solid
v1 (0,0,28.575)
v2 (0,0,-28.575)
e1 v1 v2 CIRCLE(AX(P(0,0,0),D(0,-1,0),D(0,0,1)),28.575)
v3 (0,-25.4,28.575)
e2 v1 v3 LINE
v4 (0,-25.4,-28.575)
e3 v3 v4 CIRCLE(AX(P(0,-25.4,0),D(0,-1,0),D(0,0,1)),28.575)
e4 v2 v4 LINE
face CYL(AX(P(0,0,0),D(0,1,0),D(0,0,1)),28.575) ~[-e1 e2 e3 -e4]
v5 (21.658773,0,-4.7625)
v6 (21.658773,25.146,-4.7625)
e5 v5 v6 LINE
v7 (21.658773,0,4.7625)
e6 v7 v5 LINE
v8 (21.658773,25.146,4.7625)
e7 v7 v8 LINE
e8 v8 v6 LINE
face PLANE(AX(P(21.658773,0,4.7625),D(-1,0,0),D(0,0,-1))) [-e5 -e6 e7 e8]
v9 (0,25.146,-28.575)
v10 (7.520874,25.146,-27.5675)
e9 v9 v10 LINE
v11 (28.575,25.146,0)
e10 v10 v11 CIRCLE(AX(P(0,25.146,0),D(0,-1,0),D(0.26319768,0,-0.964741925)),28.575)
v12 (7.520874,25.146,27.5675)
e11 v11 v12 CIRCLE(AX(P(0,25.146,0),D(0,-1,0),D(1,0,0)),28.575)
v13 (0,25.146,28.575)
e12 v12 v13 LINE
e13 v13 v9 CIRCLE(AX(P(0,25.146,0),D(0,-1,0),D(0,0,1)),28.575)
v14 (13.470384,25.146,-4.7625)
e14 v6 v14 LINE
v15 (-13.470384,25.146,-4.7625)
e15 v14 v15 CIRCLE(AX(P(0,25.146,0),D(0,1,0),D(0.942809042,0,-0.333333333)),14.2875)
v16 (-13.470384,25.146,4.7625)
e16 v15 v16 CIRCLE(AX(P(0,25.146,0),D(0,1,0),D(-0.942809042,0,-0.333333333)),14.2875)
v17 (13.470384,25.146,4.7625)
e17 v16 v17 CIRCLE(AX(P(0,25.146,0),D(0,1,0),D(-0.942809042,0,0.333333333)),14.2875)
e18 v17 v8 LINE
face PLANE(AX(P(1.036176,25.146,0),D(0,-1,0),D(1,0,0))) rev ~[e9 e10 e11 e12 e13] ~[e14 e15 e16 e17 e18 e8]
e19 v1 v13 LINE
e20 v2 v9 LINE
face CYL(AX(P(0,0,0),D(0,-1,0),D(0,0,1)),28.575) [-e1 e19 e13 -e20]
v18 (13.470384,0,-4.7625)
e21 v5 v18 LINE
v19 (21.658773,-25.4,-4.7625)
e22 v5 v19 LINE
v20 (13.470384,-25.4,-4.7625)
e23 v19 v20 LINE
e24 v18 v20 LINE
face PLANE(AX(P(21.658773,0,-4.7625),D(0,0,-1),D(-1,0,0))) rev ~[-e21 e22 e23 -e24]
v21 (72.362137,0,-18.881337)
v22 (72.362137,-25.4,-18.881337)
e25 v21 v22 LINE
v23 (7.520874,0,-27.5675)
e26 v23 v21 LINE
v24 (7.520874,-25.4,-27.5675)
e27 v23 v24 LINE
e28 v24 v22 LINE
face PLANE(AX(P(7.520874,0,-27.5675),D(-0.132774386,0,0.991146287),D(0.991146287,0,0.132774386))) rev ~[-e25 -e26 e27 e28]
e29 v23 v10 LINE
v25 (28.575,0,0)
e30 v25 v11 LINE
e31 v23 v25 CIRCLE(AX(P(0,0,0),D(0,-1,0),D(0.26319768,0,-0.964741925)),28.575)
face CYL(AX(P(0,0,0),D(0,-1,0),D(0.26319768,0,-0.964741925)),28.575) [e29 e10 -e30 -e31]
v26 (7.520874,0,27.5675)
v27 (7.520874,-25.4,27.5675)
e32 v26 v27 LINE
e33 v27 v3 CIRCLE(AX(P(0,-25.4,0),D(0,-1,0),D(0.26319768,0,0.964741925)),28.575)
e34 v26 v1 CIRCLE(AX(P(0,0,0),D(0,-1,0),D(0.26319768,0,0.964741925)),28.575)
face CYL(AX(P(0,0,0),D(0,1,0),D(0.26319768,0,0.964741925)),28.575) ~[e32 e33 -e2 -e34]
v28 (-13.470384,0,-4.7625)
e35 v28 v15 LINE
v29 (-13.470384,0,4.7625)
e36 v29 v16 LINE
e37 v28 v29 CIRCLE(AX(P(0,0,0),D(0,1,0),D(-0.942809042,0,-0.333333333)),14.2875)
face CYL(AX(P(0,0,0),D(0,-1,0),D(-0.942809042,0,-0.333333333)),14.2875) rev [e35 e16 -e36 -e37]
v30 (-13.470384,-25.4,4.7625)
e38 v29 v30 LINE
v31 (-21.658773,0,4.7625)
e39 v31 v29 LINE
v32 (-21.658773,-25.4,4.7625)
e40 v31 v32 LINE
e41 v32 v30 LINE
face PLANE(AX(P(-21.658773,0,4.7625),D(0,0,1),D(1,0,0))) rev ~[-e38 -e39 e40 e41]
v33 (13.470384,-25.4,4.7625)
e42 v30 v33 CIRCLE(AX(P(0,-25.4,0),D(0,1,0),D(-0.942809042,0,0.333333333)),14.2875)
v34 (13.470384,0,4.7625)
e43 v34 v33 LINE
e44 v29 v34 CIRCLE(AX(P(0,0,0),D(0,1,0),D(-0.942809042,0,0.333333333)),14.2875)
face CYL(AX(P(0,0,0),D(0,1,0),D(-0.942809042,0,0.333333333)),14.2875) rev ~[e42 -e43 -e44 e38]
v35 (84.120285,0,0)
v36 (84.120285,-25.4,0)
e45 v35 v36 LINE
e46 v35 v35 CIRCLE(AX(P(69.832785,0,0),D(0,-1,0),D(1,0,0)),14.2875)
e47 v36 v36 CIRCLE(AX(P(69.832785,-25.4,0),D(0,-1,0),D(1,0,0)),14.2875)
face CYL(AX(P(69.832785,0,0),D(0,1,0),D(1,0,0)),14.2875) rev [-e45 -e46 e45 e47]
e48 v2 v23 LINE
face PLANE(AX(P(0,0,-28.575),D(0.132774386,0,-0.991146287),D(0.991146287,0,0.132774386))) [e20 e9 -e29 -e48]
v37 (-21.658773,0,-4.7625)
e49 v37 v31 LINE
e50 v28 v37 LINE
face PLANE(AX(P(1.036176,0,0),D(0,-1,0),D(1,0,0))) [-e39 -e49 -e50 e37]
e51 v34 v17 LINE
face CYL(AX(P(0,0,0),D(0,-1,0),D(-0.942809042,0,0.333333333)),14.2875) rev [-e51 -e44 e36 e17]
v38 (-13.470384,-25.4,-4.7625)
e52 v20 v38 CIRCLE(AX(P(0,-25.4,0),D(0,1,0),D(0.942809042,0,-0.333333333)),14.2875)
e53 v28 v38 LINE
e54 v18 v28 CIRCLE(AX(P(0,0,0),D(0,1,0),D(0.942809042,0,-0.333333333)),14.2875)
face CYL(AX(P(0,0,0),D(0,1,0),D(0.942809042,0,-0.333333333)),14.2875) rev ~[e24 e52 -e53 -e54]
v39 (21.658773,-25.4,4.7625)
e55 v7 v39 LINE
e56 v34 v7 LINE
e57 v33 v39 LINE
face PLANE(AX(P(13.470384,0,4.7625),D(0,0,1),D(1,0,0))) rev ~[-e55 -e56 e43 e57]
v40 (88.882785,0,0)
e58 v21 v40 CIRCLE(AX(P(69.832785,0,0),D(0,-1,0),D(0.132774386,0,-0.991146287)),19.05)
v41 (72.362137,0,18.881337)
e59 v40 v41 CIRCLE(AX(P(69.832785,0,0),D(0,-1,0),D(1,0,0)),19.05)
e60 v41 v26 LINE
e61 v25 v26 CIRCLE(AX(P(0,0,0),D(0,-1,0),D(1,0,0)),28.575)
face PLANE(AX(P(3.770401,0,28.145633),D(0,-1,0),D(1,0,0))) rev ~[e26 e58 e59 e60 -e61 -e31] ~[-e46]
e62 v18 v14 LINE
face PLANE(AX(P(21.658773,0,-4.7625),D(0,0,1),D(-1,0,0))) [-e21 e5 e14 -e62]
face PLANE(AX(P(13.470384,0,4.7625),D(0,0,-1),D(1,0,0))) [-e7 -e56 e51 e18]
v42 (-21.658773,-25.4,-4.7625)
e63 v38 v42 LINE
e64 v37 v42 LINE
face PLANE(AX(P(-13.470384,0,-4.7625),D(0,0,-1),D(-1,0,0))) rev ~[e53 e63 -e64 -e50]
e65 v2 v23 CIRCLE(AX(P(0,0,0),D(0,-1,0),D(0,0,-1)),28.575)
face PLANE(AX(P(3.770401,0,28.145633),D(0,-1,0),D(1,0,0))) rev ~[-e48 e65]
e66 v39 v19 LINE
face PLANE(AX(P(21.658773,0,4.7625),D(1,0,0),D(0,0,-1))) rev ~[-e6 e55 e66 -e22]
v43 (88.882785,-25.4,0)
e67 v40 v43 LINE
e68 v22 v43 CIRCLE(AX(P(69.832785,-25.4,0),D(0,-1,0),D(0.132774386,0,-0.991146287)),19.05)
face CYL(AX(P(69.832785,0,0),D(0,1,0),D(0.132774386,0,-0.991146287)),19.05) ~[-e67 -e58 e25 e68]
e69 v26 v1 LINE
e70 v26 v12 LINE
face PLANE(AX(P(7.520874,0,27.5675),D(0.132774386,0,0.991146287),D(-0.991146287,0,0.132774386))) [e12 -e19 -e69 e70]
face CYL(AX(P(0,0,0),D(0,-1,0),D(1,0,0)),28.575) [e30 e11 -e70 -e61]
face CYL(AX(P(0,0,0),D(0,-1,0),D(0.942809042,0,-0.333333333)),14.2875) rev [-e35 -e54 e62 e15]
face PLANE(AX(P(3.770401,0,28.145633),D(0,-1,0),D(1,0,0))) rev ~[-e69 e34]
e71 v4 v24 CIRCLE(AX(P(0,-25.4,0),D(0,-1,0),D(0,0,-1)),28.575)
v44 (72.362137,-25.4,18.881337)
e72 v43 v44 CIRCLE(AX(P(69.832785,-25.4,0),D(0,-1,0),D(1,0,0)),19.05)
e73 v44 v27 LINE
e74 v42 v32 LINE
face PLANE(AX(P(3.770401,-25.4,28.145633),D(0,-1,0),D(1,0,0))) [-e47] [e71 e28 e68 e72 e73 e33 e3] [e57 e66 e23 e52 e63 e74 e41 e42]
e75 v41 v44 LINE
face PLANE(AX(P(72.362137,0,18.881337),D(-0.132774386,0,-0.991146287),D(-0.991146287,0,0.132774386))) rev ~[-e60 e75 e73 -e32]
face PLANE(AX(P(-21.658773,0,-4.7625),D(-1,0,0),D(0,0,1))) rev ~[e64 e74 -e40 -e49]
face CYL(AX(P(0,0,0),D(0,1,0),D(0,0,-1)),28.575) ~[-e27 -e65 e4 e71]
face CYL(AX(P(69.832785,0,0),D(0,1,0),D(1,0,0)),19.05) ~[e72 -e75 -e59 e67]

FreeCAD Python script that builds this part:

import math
import FreeCAD as App
import Part
import Sketcher
Q = App.Units.Quantity

doc = App.newDocument("Part")
body = doc.addObject("PartDesign::Body", "Body")

sketch1 = body.newObject("Sketcher::SketchObject", "Sketch")
sketch1.AttachmentSupport = (doc.getObject("XZ_Plane"), [""])
sketch1.MapMode = "FlatFace"
sketch1.addGeometry([
    Part.ArcOfCircle(Part.Circle(App.Vector(0, 0, 0), App.Vector(0, 0, 1), 29), math.radians(74.74), math.radians(90)),
    Part.ArcOfCircle(Part.Circle(App.Vector(0, 0, 0), App.Vector(0, 0, 1), 29), math.radians(90), math.radians(270)),
    Part.ArcOfCircle(Part.Circle(App.Vector(0, 0, 0), App.Vector(0, 0, 1), 29), math.radians(-90), math.radians(-74.74)),
    Part.LineSegment(App.Vector(8, -28, 0), App.Vector(72, -19, 0)),
    Part.ArcOfCircle(Part.Circle(App.Vector(70, 0, 0), App.Vector(0, 0, 1), 19), math.radians(-82), math.radians(0)),
    Part.ArcOfCircle(Part.Circle(App.Vector(70, 0, 0), App.Vector(0, 0, 1), 19), math.radians(0), math.radians(82)),
    Part.LineSegment(App.Vector(72, 19, 0), App.Vector(8, 28, 0)),
    Part.LineSegment(App.Vector(-22, 5, 0), App.Vector(-13, 5, 0)),
    Part.ArcOfCircle(Part.Circle(App.Vector(0, 0, 0), App.Vector(0, 0, 1), 14), math.radians(19), math.radians(161)),
    Part.LineSegment(App.Vector(13, 5, 0), App.Vector(22, 5, 0)),
    Part.LineSegment(App.Vector(22, 5, 0), App.Vector(22, -5, 0)),
    Part.LineSegment(App.Vector(22, -5, 0), App.Vector(13, -5, 0)),
    Part.ArcOfCircle(Part.Circle(App.Vector(0, 0, 0), App.Vector(0, 0, 1), 14), math.radians(-161), math.radians(-19)),
    Part.LineSegment(App.Vector(-13, -5, 0), App.Vector(-22, -5, 0)),
    Part.LineSegment(App.Vector(-22, -5, 0), App.Vector(-22, 5, 0)),
    Part.Circle(App.Vector(70, 0, 0), App.Vector(0, 0, 1), 14),
], False)
sketch1.addConstraint([
    Sketcher.Constraint("Tangent", 0, 2, 1, 1),
    Sketcher.Constraint("Tangent", 1, 2, 2, 1),
    Sketcher.Constraint("Coincident", 2, 2, 3, 1),
    Sketcher.Constraint("Tangent", 3, 2, 4, 1),
    Sketcher.Constraint("Tangent", 4, 2, 5, 1),
    Sketcher.Constraint("Tangent", 5, 2, 6, 1),
    Sketcher.Constraint("Coincident", 6, 2, 0, 1),
    Sketcher.Constraint("Coincident", 7, 2, 8, 2),
    Sketcher.Constraint("Coincident", 8, 1, 9, 1),
    Sketcher.Constraint("Coincident", 9, 2, 10, 1),
    Sketcher.Constraint("Coincident", 10, 2, 11, 1),
    Sketcher.Constraint("Coincident", 11, 2, 12, 2),
    Sketcher.Constraint("Coincident", 12, 1, 13, 1),
    Sketcher.Constraint("Coincident", 13, 2, 14, 1),
    Sketcher.Constraint("Coincident", 14, 2, 7, 1),
    Sketcher.Constraint("Horizontal", 7),
    Sketcher.Constraint("Horizontal", 9),
    Sketcher.Constraint("Vertical", 10),
    Sketcher.Constraint("Horizontal", 11),
    Sketcher.Constraint("Horizontal", 13),
    Sketcher.Constraint("Vertical", 14),
    Sketcher.Constraint("Coincident", 0, 3, -1, 1),
    Sketcher.Constraint("Coincident", 8, 3, -1, 1),
    Sketcher.Constraint("Coincident", 12, 3, -1, 1),
    Sketcher.Constraint("Coincident", 15, 3, 4, 3),
    Sketcher.Constraint("Equal", 0, 1),
    Sketcher.Constraint("Equal", 1, 2),
    Sketcher.Constraint("Equal", 4, 5),
    Sketcher.Constraint("Equal", 8, 12),
    Sketcher.Constraint("Equal", 12, 15),
    Sketcher.Constraint("Symmetric", 9, 2, 13, 2, -1, 1),
    Sketcher.Constraint("Symmetric", 3, 2, 5, 2, -1),
    Sketcher.Constraint("PointOnObject", 0, 2, -2),
    Sketcher.Constraint("PointOnObject", 1, 2, -2),
    Sketcher.Constraint("PointOnObject", 4, 2, -1),
    Sketcher.Constraint("Horizontal", 7, 2, 8, 1),
    Sketcher.Constraint("Horizontal", 11, 2, 12, 1),
    Sketcher.Constraint("Radius", 4, Q("0.75 in")),
    Sketcher.Constraint("Diameter", 15, Q("1.125 in")),
    Sketcher.Constraint("Radius", 0, Q("1.125 in")),
    Sketcher.Constraint("DistanceY", 10, 2, 10, 1, Q("0.375 in")),
    Sketcher.Constraint("DistanceX", 7, 1, 7, 2, Q("8.188388 mm")),
    Sketcher.Constraint("DistanceY", 2, 2, -1, 1, Q("27.5675 mm")),
    Sketcher.Constraint("DistanceX", 2, 2, 4, 2, Q("81.361911 mm")),
])
pad1 = body.newObject("PartDesign::Pad", "Pad")
pad1.Profile = sketch1
pad1.Length = Q("1 in")

sketch2 = body.newObject("Sketcher::SketchObject", "Sketch001")
sketch2.AttachmentSupport = (doc.getObject("XZ_Plane"), [""])
sketch2.MapMode = "FlatFace"
sketch2.addGeometry([
    Part.LineSegment(App.Vector(8, 28, 0), App.Vector(0, 29, 0)),
    Part.ArcOfCircle(Part.Circle(App.Vector(0, 0, 0), App.Vector(0, 0, 1), 29), math.radians(90), math.radians(270)),
    Part.LineSegment(App.Vector(0, -29, 0), App.Vector(8, -28, 0)),
    Part.ArcOfCircle(Part.Circle(App.Vector(0, 0, 0), App.Vector(0, 0, 1), 29), math.radians(-75), math.radians(0)),
    Part.ArcOfCircle(Part.Circle(App.Vector(0, 0, 0), App.Vector(0, 0, 1), 29), math.radians(0), math.radians(75)),
    Part.ArcOfCircle(Part.Circle(App.Vector(0, 0, 0), App.Vector(0, 0, 1), 14), math.radians(-161), math.radians(-19)),
    Part.ArcOfCircle(Part.Circle(App.Vector(0, 0, 0), App.Vector(0, 0, 1), 14), math.radians(161), math.radians(199)),
    Part.ArcOfCircle(Part.Circle(App.Vector(0, 0, 0), App.Vector(0, 0, 1), 14), math.radians(19), math.radians(161)),
    Part.LineSegment(App.Vector(13, 5, 0), App.Vector(22, 5, 0)),
    Part.LineSegment(App.Vector(22, 5, 0), App.Vector(22, -5, 0)),
    Part.LineSegment(App.Vector(22, -5, 0), App.Vector(13, -5, 0)),
], False)
sketch2.addConstraint([
    Sketcher.Constraint("Coincident", 0, 2, 1, 1),
    Sketcher.Constraint("Coincident", 1, 2, 2, 1),
    Sketcher.Constraint("Coincident", 2, 2, 3, 1),
    Sketcher.Constraint("Tangent", 3, 2, 4, 1),
    Sketcher.Constraint("Coincident", 4, 2, 0, 1),
    Sketcher.Constraint("Tangent", 5, 1, 6, 2),
    Sketcher.Constraint("Tangent", 6, 1, 7, 2),
    Sketcher.Constraint("Coincident", 7, 1, 8, 1),
    Sketcher.Constraint("Coincident", 8, 2, 9, 1),
    Sketcher.Constraint("Coincident", 9, 2, 10, 1),
    Sketcher.Constraint("Coincident", 10, 2, 5, 2),
    Sketcher.Constraint("Horizontal", 8),
    Sketcher.Constraint("Vertical", 9),
    Sketcher.Constraint("Horizontal", 10),
    Sketcher.Constraint("Coincident", 1, 3, -1, 1),
    Sketcher.Constraint("Coincident", 3, 3, -1, 1),
    Sketcher.Constraint("Coincident", 5, 3, -1, 1),
    Sketcher.Constraint("Coincident", 7, 3, -1, 1),
    Sketcher.Constraint("Equal", 1, 3),
    Sketcher.Constraint("Equal", 3, 4),
    Sketcher.Constraint("PointOnObject", 0, 2, -2),
    Sketcher.Constraint("PointOnObject", 1, 2, -2),
    Sketcher.Constraint("PointOnObject", 3, 2, -1),
    Sketcher.Constraint("Horizontal", 6, 1, 7, 1),
    Sketcher.Constraint("Horizontal", 5, 1, 9, 2),
    Sketcher.Constraint("Vertical", 2, 2, 4, 2),
    Sketcher.Constraint("Vertical", 5, 1, 6, 1),
    Sketcher.Constraint("Radius", 1, Q("1.125 in")),
    Sketcher.Constraint("Radius", 5, Q("0.5625 in")),
    Sketcher.Constraint("DistanceY", 9, 2, 9, 1, Q("0.375 in")),
    Sketcher.Constraint("DistanceX", 8, 1, 8, 2, Q("8.188388 mm")),
    Sketcher.Constraint("DistanceY", 2, 2, -1, 1, Q("27.5675 mm")),
])
pad2 = body.newObject("PartDesign::Pad", "Pad001")
pad2.Profile = sketch2
pad2.Length = Q("0.99 in")
pad2.Reversed = True

doc.recompute()
